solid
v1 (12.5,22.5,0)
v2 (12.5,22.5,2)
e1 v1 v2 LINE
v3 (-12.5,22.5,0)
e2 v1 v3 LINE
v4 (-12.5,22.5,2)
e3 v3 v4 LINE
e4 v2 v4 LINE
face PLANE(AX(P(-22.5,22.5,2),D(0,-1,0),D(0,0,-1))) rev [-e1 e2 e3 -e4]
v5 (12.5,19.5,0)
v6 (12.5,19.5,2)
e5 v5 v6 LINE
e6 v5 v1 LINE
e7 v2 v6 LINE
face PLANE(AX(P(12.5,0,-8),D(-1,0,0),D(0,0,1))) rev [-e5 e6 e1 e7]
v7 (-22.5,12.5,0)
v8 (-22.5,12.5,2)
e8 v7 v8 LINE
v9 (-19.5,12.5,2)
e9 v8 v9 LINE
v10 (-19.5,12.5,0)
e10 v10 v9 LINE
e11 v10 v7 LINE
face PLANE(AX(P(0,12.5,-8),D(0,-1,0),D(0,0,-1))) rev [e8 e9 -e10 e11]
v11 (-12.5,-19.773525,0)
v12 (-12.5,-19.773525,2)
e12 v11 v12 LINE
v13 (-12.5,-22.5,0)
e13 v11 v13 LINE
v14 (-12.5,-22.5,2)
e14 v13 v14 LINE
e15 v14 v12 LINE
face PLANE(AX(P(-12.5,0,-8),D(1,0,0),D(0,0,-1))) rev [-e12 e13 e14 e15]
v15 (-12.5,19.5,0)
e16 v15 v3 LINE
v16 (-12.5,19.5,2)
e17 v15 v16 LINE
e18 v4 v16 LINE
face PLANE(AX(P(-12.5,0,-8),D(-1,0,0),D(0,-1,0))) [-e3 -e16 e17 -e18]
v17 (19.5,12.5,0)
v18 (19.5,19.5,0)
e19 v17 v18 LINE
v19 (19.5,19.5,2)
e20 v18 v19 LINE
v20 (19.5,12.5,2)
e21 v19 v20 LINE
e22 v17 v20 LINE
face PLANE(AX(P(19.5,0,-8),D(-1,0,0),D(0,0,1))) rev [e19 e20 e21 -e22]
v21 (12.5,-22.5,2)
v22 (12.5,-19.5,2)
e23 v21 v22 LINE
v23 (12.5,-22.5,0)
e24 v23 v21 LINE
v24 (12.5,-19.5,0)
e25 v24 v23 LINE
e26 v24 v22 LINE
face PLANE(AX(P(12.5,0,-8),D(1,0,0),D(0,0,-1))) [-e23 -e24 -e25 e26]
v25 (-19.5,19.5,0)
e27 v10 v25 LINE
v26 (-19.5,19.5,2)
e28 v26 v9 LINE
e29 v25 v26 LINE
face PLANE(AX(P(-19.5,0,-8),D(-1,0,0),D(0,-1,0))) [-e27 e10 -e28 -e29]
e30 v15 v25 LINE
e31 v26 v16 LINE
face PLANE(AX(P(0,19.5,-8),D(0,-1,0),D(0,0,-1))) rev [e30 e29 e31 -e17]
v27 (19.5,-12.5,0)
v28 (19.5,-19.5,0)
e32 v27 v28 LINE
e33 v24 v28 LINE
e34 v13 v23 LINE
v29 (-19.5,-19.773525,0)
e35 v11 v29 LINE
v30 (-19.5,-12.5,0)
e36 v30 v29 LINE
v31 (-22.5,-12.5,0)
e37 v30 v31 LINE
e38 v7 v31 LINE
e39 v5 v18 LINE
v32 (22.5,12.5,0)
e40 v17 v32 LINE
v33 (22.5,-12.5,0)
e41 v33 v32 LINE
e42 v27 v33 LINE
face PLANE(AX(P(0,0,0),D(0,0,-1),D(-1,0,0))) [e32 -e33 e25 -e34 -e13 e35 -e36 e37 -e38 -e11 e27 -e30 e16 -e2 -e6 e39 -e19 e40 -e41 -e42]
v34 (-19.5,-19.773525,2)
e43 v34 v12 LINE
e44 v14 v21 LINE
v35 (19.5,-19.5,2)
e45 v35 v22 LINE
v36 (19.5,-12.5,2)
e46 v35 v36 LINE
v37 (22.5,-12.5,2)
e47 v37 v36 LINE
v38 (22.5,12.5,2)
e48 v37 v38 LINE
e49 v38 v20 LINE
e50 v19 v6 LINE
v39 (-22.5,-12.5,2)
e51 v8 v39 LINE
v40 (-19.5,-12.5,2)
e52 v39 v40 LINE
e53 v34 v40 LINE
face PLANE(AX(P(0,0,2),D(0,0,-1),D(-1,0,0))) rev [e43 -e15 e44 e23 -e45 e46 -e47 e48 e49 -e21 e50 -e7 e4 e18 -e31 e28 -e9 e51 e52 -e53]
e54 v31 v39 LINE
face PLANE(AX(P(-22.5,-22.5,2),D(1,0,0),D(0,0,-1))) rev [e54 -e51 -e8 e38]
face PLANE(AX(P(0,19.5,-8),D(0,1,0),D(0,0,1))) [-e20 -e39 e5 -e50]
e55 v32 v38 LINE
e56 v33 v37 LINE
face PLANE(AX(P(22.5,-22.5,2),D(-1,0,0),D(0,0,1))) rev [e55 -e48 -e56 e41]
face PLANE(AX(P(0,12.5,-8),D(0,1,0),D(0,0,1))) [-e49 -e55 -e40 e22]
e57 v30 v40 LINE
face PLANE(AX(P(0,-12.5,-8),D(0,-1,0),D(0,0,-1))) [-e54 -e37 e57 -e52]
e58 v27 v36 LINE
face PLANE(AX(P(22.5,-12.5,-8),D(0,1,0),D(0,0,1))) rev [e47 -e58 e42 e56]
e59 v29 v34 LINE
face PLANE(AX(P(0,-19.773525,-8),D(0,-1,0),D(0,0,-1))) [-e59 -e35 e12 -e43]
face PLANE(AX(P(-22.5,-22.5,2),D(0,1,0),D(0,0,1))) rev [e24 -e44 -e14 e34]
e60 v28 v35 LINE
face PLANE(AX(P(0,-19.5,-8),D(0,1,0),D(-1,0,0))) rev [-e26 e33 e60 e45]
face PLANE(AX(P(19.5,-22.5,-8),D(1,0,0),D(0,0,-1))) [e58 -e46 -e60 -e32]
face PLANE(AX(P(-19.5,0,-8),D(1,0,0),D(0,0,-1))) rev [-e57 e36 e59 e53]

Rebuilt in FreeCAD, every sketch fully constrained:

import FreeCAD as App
import Part
import Sketcher


def add_polygon(sketch, points):
    """Adds a closed chain of lines whose ends are joined by coincident constraints."""
    first, n = sketch.GeometryCount, len(points)
    for a, b in zip(points, points[1:] + points[:1]):
        sketch.addGeometry(Part.LineSegment(App.Vector(*a, 0), App.Vector(*b, 0)), False)
    for i in range(n):
        sketch.addConstraint(Sketcher.Constraint("Coincident", first + i, 2, first + (i + 1) % n, 1))

doc = App.newDocument("Part")
body = doc.addObject("PartDesign::Body", "Body")

# Sketch on XY plane
sketch1 = body.newObject("Sketcher::SketchObject", "Sketch")
sketch1.AttachmentSupport = (doc.getObject("XY_Plane"), [""])
sketch1.MapMode = "FlatFace"
add_polygon(sketch1, [(-22, 22), (-22, -22), (22, -22), (22, 22)])  # lines 0-3
sketch1.addConstraint(Sketcher.Constraint("Vertical", 0))
sketch1.addConstraint(Sketcher.Constraint("Horizontal", 1))
sketch1.addConstraint(Sketcher.Constraint("Vertical", 2))
sketch1.addConstraint(Sketcher.Constraint("Horizontal", 3))
sketch1.addConstraint(Sketcher.Constraint("Symmetric", 0, 2, 2, 2, -1, 1))
sketch1.addConstraint(Sketcher.Constraint("Equal", 3, 0))
sketch1.addConstraint(Sketcher.Constraint("DistanceX", 1, 1, 1, 2, 45.0))
pad1 = body.newObject("PartDesign::Pad", "Pad")
pad1.Profile = sketch1
pad1.Length = 2

# Sketch on XY plane
sketch2 = body.newObject("Sketcher::SketchObject", "Sketch001")
sketch2.AttachmentSupport = (doc.getObject("XY_Plane"), [""])
sketch2.MapMode = "FlatFace"
sketch2.AttachmentOffset = App.Placement(App.Vector(0, 0, 2), App.Rotation())
add_polygon(sketch2, [(-22.5, -12.5), (-22.5, -22.5), (-12.5, -22.5), (-12.5, -19.8), (-19.5, -19.8), (-19.5, -12.5)])  # lines 0-5
add_polygon(sketch2, [(22.5, -22.5), (22.5, -12.5), (19.5, -12.5), (19.5, -19.5), (12.5, -19.5), (12.5, -22.5)])  # lines 6-11
add_polygon(sketch2, [(-12.5, 22.5), (-22.5, 22.5), (-22.5, 12.5), (-19.5, 12.5), (-19.5, 19.5), (-12.5, 19.5)])  # lines 12-17
add_polygon(sketch2, [(22.5, 12.5), (22.5, 22.5), (12.5, 22.5), (12.5, 19.5), (19.5, 19.5), (19.5, 12.5)])  # lines 18-23
sketch2.addConstraint(Sketcher.Constraint("Vertical", 0))
sketch2.addConstraint(Sketcher.Constraint("Horizontal", 1))
sketch2.addConstraint(Sketcher.Constraint("Vertical", 2))
sketch2.addConstraint(Sketcher.Constraint("Horizontal", 3))
sketch2.addConstraint(Sketcher.Constraint("Vertical", 4))
sketch2.addConstraint(Sketcher.Constraint("Horizontal", 5))
sketch2.addConstraint(Sketcher.Constraint("Vertical", 6))
sketch2.addConstraint(Sketcher.Constraint("Horizontal", 7))
sketch2.addConstraint(Sketcher.Constraint("Vertical", 8))
sketch2.addConstraint(Sketcher.Constraint("Horizontal", 9))
sketch2.addConstraint(Sketcher.Constraint("Vertical", 10))
sketch2.addConstraint(Sketcher.Constraint("Horizontal", 11))
sketch2.addConstraint(Sketcher.Constraint("Horizontal", 12))
sketch2.addConstraint(Sketcher.Constraint("Vertical", 13))
sketch2.addConstraint(Sketcher.Constraint("Horizontal", 14))
sketch2.addConstraint(Sketcher.Constraint("Vertical", 15))
sketch2.addConstraint(Sketcher.Constraint("Horizontal", 16))
sketch2.addConstraint(Sketcher.Constraint("Vertical", 17))
sketch2.addConstraint(Sketcher.Constraint("Vertical", 18))
sketch2.addConstraint(Sketcher.Constraint("Horizontal", 19))
sketch2.addConstraint(Sketcher.Constraint("Vertical", 20))
sketch2.addConstraint(Sketcher.Constraint("Horizontal", 21))
sketch2.addConstraint(Sketcher.Constraint("Vertical", 22))
sketch2.addConstraint(Sketcher.Constraint("Horizontal", 23))
sketch2.addConstraint(Sketcher.Constraint("Symmetric", 11, 2, 12, 2, -1, 1))
sketch2.addConstraint(Sketcher.Constraint("Symmetric", 7, 2, 14, 2, -1, 1))
sketch2.addConstraint(Sketcher.Constraint("Symmetric", 9, 2, 16, 2, -1, 1))
sketch2.addConstraint(Sketcher.Constraint("Symmetric", 0, 2, 18, 2, -1, 1))
sketch2.addConstraint(Sketcher.Constraint("Symmetric", 4, 2, 22, 2, -1, 1))
sketch2.addConstraint(Sketcher.Constraint("Symmetric", 5, 2, 6, 2, -2))
sketch2.addConstraint(Sketcher.Constraint("Symmetric", 1, 2, 10, 2, -2))
sketch2.addConstraint(Sketcher.Constraint("Symmetric", 16, 2, 20, 2, -2))
sketch2.addConstraint(Sketcher.Constraint("Vertical", 4, 2, 14, 2))
sketch2.addConstraint(Sketcher.Constraint("Equal", 19, 0))
sketch2.addConstraint(Sketcher.Constraint("Equal", 21, 8))
sketch2.addConstraint(Sketcher.Constraint("DistanceX", 1, 1, 1, 2, 10.0))
sketch2.addConstraint(Sketcher.Constraint("DistanceX", 3, 2, 3, 1, 7.0))
sketch2.addConstraint(Sketcher.Constraint("DistanceX", 2, 2, 6, 2, 35.0))
sketch2.addConstraint(Sketcher.Constraint("DistanceY", 5, 2, 12, 2, 35.0))
sketch2.addConstraint(Sketcher.Constraint("DistanceY", 2, 1, 2, 2, 2.726475))
pocket1 = body.newObject("PartDesign::Pocket", "Pocket")
pocket1.Profile = sketch2
pocket1.Length = 10

doc.recompute()
